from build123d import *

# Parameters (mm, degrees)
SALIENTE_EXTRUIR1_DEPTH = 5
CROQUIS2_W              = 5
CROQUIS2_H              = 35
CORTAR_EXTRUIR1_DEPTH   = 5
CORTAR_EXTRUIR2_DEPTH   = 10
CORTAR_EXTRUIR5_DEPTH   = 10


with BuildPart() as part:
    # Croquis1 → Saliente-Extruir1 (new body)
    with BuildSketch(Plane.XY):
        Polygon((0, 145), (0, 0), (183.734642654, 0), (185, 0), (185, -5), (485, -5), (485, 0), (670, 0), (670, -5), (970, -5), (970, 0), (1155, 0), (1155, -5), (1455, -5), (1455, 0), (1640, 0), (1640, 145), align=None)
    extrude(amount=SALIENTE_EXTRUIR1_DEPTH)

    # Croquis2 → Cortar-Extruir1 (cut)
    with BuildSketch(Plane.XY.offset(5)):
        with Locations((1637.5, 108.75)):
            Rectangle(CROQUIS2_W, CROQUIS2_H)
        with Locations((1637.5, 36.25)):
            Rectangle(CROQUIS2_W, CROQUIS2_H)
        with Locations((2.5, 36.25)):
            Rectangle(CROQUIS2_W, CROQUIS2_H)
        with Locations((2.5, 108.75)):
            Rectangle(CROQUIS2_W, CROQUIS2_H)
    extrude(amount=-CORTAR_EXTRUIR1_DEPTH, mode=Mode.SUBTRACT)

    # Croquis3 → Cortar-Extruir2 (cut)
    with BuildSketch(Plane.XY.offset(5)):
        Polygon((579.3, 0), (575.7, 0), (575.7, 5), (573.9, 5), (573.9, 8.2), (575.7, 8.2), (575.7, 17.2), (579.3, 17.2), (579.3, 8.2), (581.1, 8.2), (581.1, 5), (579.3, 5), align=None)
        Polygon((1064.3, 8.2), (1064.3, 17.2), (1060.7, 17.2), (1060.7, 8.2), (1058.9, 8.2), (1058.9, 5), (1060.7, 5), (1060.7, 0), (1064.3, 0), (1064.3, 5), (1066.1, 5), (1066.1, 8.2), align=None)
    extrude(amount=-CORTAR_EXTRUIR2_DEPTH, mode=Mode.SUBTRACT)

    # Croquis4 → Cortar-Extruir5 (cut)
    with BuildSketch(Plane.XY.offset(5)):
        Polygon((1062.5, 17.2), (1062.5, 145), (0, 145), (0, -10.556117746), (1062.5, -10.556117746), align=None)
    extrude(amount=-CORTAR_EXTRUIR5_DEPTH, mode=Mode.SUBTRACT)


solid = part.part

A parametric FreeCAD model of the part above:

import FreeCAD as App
import Part
import Sketcher
Q = App.Units.Quantity

doc = App.newDocument("Part")
params = doc.addObject("Spreadsheet::Sheet", "Params")
for row, (alias, value) in enumerate([
    ("sketch1_width", "185 mm"),
    ("sketch1_width2", "300 mm"),
    ("sketch1_height", "145 mm"),
    ("sketch1_height2", "5 mm"),
    ("pad1_length", "5 mm"),
    ("sketch2_width", "5 mm"),
    ("sketch2_height", "35 mm"),
    ("pocket1_length", "5 mm"),
    ("sketch3_height", "5 mm"),
    ("sketch3_height2", "9 mm"),
    ("sketch3_width", "3.6 mm"),
    ("sketch3_width2", "1.8 mm"),
    ("sketch3_height3", "3.2 mm"),
    ("pocket2_length", "10 mm"),
    ("sketch4_width", "1062.5 mm"),
    ("pocket3_length", "10 mm"),
], start=1):
    params.set(f"A{row}", alias)
    params.set(f"B{row}", "=" + value)
    params.setAlias(f"B{row}", alias)

body = doc.addObject("PartDesign::Body", "Body")

# Sketch on XY plane
sketch1 = doc.addObject("Sketcher::SketchObject", "Sketch")
body.addObject(sketch1)
sketch1.AttachmentSupport = (doc.XY_Plane, [""])
sketch1.MapMode = "FlatFace"
sketch1.addGeometry([
    Part.LineSegment(App.Vector(0, 145, 0), App.Vector(0, 0, 0)),  # 0
    Part.LineSegment(App.Vector(0, 0, 0), App.Vector(185, 0, 0)),  # 1
    Part.LineSegment(App.Vector(185, 0, 0), App.Vector(185, -5, 0)),  # 2
    Part.LineSegment(App.Vector(185, -5, 0), App.Vector(485, -5, 0)),  # 3
    Part.LineSegment(App.Vector(485, -5, 0), App.Vector(485, 0, 0)),  # 4
    Part.LineSegment(App.Vector(485, 0, 0), App.Vector(670, 0, 0)),  # 5
    Part.LineSegment(App.Vector(670, 0, 0), App.Vector(670, -5, 0)),  # 6
    Part.LineSegment(App.Vector(670, -5, 0), App.Vector(970, -5, 0)),  # 7
    Part.LineSegment(App.Vector(970, -5, 0), App.Vector(970, 0, 0)),  # 8
    Part.LineSegment(App.Vector(970, 0, 0), App.Vector(1155, 0, 0)),  # 9
    Part.LineSegment(App.Vector(1155, 0, 0), App.Vector(1155, -5, 0)),  # 10
    Part.LineSegment(App.Vector(1155, -5, 0), App.Vector(1455, -5, 0)),  # 11
    Part.LineSegment(App.Vector(1455, -5, 0), App.Vector(1455, 0, 0)),  # 12
    Part.LineSegment(App.Vector(1455, 0, 0), App.Vector(1640, 0, 0)),  # 13
    Part.LineSegment(App.Vector(1640, 0, 0), App.Vector(1640, 145, 0)),  # 14
    Part.LineSegment(App.Vector(1640, 145, 0), App.Vector(0, 145, 0)),  # 15
], False)
sketch1.addConstraint([
    Sketcher.Constraint("Coincident", 0, 2, 1, 1),
    Sketcher.Constraint("Coincident", 1, 2, 2, 1),
    Sketcher.Constraint("Coincident", 2, 2, 3, 1),
    Sketcher.Constraint("Coincident", 3, 2, 4, 1),
    Sketcher.Constraint("Coincident", 4, 2, 5, 1),
    Sketcher.Constraint("Coincident", 5, 2, 6, 1),
    Sketcher.Constraint("Coincident", 6, 2, 7, 1),
    Sketcher.Constraint("Coincident", 7, 2, 8, 1),
    Sketcher.Constraint("Coincident", 8, 2, 9, 1),
    Sketcher.Constraint("Coincident", 9, 2, 10, 1),
    Sketcher.Constraint("Coincident", 10, 2, 11, 1),
    Sketcher.Constraint("Coincident", 11, 2, 12, 1),
    Sketcher.Constraint("Coincident", 12, 2, 13, 1),
    Sketcher.Constraint("Coincident", 13, 2, 14, 1),
    Sketcher.Constraint("Coincident", 14, 2, 15, 1),
    Sketcher.Constraint("Coincident", 15, 2, 0, 1),
    Sketcher.Constraint("Vertical", 0),
    Sketcher.Constraint("Horizontal", 1),
    Sketcher.Constraint("Vertical", 2),
    Sketcher.Constraint("Horizontal", 3),
    Sketcher.Constraint("Vertical", 4),
    Sketcher.Constraint("Horizontal", 5),
    Sketcher.Constraint("Vertical", 6),
    Sketcher.Constraint("Horizontal", 7),
    Sketcher.Constraint("Vertical", 8),
    Sketcher.Constraint("Horizontal", 9),
    Sketcher.Constraint("Vertical", 10),
    Sketcher.Constraint("Horizontal", 11),
    Sketcher.Constraint("Vertical", 12),
    Sketcher.Constraint("Horizontal", 13),
    Sketcher.Constraint("Vertical", 14),
    Sketcher.Constraint("Horizontal", 15),
    Sketcher.Constraint("Coincident", 0, 2, -1, 1),
    Sketcher.Constraint("PointOnObject", 4, 2, -1),
    Sketcher.Constraint("PointOnObject", 8, 2, -1),
    Sketcher.Constraint("PointOnObject", 12, 2, -1),
    Sketcher.Constraint("Horizontal", 3, 2, 6, 2),
    Sketcher.Constraint("Horizontal", 7, 2, 10, 2),
    Sketcher.Constraint("Equal", 1, 5),
    Sketcher.Constraint("Equal", 3, 7),
    Sketcher.Constraint("Equal", 5, 9),
    Sketcher.Constraint("Equal", 7, 11),
    Sketcher.Constraint("Equal", 9, 13),
    Sketcher.Constraint("DistanceX", 1, 1, 1, 2, Q("185 mm")),
    Sketcher.Constraint("DistanceX", 3, 1, 3, 2, Q("300 mm")),
    Sketcher.Constraint("DistanceY", 0, 2, 0, 1, Q("145 mm")),
    Sketcher.Constraint("DistanceY", 2, 2, 2, 1, Q("5 mm")),
])
sketch1.setExpression("Constraints[43]", "Params.sketch1_width")
sketch1.setExpression("Constraints[44]", "Params.sketch1_width2")
sketch1.setExpression("Constraints[45]", "Params.sketch1_height")
sketch1.setExpression("Constraints[46]", "Params.sketch1_height2")
pad1 = doc.addObject("PartDesign::Pad", "Pad")
body.addObject(pad1)
pad1.Profile = sketch1
pad1.setExpression("Length", "Params.pad1_length")

# Sketch on XY plane
sketch2 = doc.addObject("Sketcher::SketchObject", "Sketch001")
body.addObject(sketch2)
sketch2.AttachmentSupport = (doc.XY_Plane, [""])
sketch2.MapMode = "FlatFace"
sketch2.AttachmentOffset = App.Placement(App.Vector(0, 0, 5), App.Rotation())
sketch2.addGeometry([
    Part.LineSegment(App.Vector(1635, 126, 0), App.Vector(1635, 91, 0)),  # 0
    Part.LineSegment(App.Vector(1635, 91, 0), App.Vector(1640, 91, 0)),  # 1
    Part.LineSegment(App.Vector(1640, 91, 0), App.Vector(1640, 126, 0)),  # 2
    Part.LineSegment(App.Vector(1640, 126, 0), App.Vector(1635, 126, 0)),  # 3
    Part.LineSegment(App.Vector(1635, 54, 0), App.Vector(1635, 19, 0)),  # 4
    Part.LineSegment(App.Vector(1635, 19, 0), App.Vector(1640, 19, 0)),  # 5
    Part.LineSegment(App.Vector(1640, 19, 0), App.Vector(1640, 54, 0)),  # 6
    Part.LineSegment(App.Vector(1640, 54, 0), App.Vector(1635, 54, 0)),  # 7
    Part.LineSegment(App.Vector(0, 54, 0), App.Vector(0, 19, 0)),  # 8
    Part.LineSegment(App.Vector(0, 19, 0), App.Vector(5, 19, 0)),  # 9
    Part.LineSegment(App.Vector(5, 19, 0), App.Vector(5, 54, 0)),  # 10
    Part.LineSegment(App.Vector(5, 54, 0), App.Vector(0, 54, 0)),  # 11
    Part.LineSegment(App.Vector(0, 126, 0), App.Vector(0, 91, 0)),  # 12
    Part.LineSegment(App.Vector(0, 91, 0), App.Vector(5, 91, 0)),  # 13
    Part.LineSegment(App.Vector(5, 91, 0), App.Vector(5, 126, 0)),  # 14
    Part.LineSegment(App.Vector(5, 126, 0), App.Vector(0, 126, 0)),  # 15
], False)
sketch2.addConstraint([
    Sketcher.Constraint("Coincident", 0, 2, 1, 1),
    Sketcher.Constraint("Coincident", 1, 2, 2, 1),
    Sketcher.Constraint("Coincident", 2, 2, 3, 1),
    Sketcher.Constraint("Coincident", 3, 2, 0, 1),
    Sketcher.Constraint("Coincident", 4, 2, 5, 1),
    Sketcher.Constraint("Coincident", 5, 2, 6, 1),
    Sketcher.Constraint("Coincident", 6, 2, 7, 1),
    Sketcher.Constraint("Coincident", 7, 2, 4, 1),
    Sketcher.Constraint("Coincident", 8, 2, 9, 1),
    Sketcher.Constraint("Coincident", 9, 2, 10, 1),
    Sketcher.Constraint("Coincident", 10, 2, 11, 1),
    Sketcher.Constraint("Coincident", 11, 2, 8, 1),
    Sketcher.Constraint("Coincident", 12, 2, 13, 1),
    Sketcher.Constraint("Coincident", 13, 2, 14, 1),
    Sketcher.Constraint("Coincident", 14, 2, 15, 1),
    Sketcher.Constraint("Coincident", 15, 2, 12, 1),
    Sketcher.Constraint("Vertical", 0),
    Sketcher.Constraint("Horizontal", 1),
    Sketcher.Constraint("Vertical", 2),
    Sketcher.Constraint("Horizontal", 3),
    Sketcher.Constraint("Vertical", 4),
    Sketcher.Constraint("Horizontal", 5),
    Sketcher.Constraint("Vertical", 6),
    Sketcher.Constraint("Horizontal", 7),
    Sketcher.Constraint("Vertical", 8),
    Sketcher.Constraint("Horizontal", 9),
    Sketcher.Constraint("Vertical", 10),
    Sketcher.Constraint("Horizontal", 11),
    Sketcher.Constraint("Vertical", 12),
    Sketcher.Constraint("Horizontal", 13),
    Sketcher.Constraint("Vertical", 14),
    Sketcher.Constraint("Horizontal", 15),
    Sketcher.Constraint("PointOnObject", 8, 2, -2),
    Sketcher.Constraint("PointOnObject", 12, 2, -2),
    Sketcher.Constraint("Horizontal", 5, 2, 8, 2),
    Sketcher.Constraint("Horizontal", 7, 2, 10, 2),
    Sketcher.Constraint("Horizontal", 1, 2, 12, 2),
    Sketcher.Constraint("Horizontal", 3, 2, 14, 2),
    Sketcher.Constraint("Vertical", 3, 2, 4, 2),
    Sketcher.Constraint("Vertical", 2, 2, 5, 2),
    Sketcher.Constraint("Vertical", 10, 2, 13, 2),
    Sketcher.Constraint("Equal", 7, 9),
    Sketcher.Constraint("Equal", 2, 4),
    Sketcher.Constraint("DistanceX", 1, 1, 1, 2, Q("5 mm")),
    Sketcher.Constraint("DistanceY", 0, 2, 0, 1, Q("35 mm")),
    Sketcher.Constraint("DistanceX", -1, 1, 0, 2, Q("1635 mm")),
    Sketcher.Constraint("DistanceY", 4, 2, 0, 2, Q("72.5 mm")),
    Sketcher.Constraint("DistanceY", -1, 1, 0, 2, Q("91.25 mm")),
])
sketch2.setExpression("Constraints[43]", "Params.sketch2_width")
sketch2.setExpression("Constraints[44]", "Params.sketch2_height")
pocket1 = doc.addObject("PartDesign::Pocket", "Pocket")
body.addObject(pocket1)
pocket1.Profile = sketch2
pocket1.setExpression("Length", "Params.pocket1_length")

# Sketch on XY plane
sketch3 = doc.addObject("Sketcher::SketchObject", "Sketch002")
body.addObject(sketch3)
sketch3.AttachmentSupport = (doc.XY_Plane, [""])
sketch3.MapMode = "FlatFace"
sketch3.AttachmentOffset = App.Placement(App.Vector(0, 0, 5), App.Rotation())
sketch3.addGeometry([
    Part.LineSegment(App.Vector(575.7, 0, 0), App.Vector(579.3, 0, 0)),  # 0
    Part.LineSegment(App.Vector(579.3, 0, 0), App.Vector(579.3, 5, 0)),  # 1
    Part.LineSegment(App.Vector(579.3, 5, 0), App.Vector(581.1, 5, 0)),  # 2
    Part.LineSegment(App.Vector(581.1, 5, 0), App.Vector(581.1, 8.2, 0)),  # 3
    Part.LineSegment(App.Vector(581.1, 8.2, 0), App.Vector(579.3, 8.2, 0)),  # 4
    Part.LineSegment(App.Vector(579.3, 8.2, 0), App.Vector(579.3, 17.2, 0)),  # 5
    Part.LineSegment(App.Vector(579.3, 17.2, 0), App.Vector(575.7, 17.2, 0)),  # 6
    Part.LineSegment(App.Vector(575.7, 17.2, 0), App.Vector(575.7, 8.2, 0)),  # 7
    Part.LineSegment(App.Vector(575.7, 8.2, 0), App.Vector(573.9, 8.2, 0)),  # 8
    Part.LineSegment(App.Vector(573.9, 8.2, 0), App.Vector(573.9, 5, 0)),  # 9
    Part.LineSegment(App.Vector(573.9, 5, 0), App.Vector(575.7, 5, 0)),  # 10
    Part.LineSegment(App.Vector(575.7, 5, 0), App.Vector(575.7, 0, 0)),  # 11
    Part.LineSegment(App.Vector(1064.3, 8.2, 0), App.Vector(1064.3, 17.2, 0)),  # 12
    Part.LineSegment(App.Vector(1064.3, 17.2, 0), App.Vector(1060.7, 17.2, 0)),  # 13
    Part.LineSegment(App.Vector(1060.7, 17.2, 0), App.Vector(1060.7, 8.2, 0)),  # 14
    Part.LineSegment(App.Vector(1060.7, 8.2, 0), App.Vector(1058.9, 8.2, 0)),  # 15
    Part.LineSegment(App.Vector(1058.9, 8.2, 0), App.Vector(1058.9, 5, 0)),  # 16
    Part.LineSegment(App.Vector(1058.9, 5, 0), App.Vector(1060.7, 5, 0)),  # 17
    Part.LineSegment(App.Vector(1060.7, 5, 0), App.Vector(1060.7, 0, 0)),  # 18
    Part.LineSegment(App.Vector(1060.7, 0, 0), App.Vector(1064.3, 0, 0)),  # 19
    Part.LineSegment(App.Vector(1064.3, 0, 0), App.Vector(1064.3, 5, 0)),  # 20
    Part.LineSegment(App.Vector(1064.3, 5, 0), App.Vector(1066.1, 5, 0)),  # 21
    Part.LineSegment(App.Vector(1066.1, 5, 0), App.Vector(1066.1, 8.2, 0)),  # 22
    Part.LineSegment(App.Vector(1066.1, 8.2, 0), App.Vector(1064.3, 8.2, 0)),  # 23
], False)
sketch3.addConstraint([
    Sketcher.Constraint("Coincident", 0, 2, 1, 1),
    Sketcher.Constraint("Coincident", 1, 2, 2, 1),
    Sketcher.Constraint("Coincident", 2, 2, 3, 1),
    Sketcher.Constraint("Coincident", 3, 2, 4, 1),
    Sketcher.Constraint("Coincident", 4, 2, 5, 1),
    Sketcher.Constraint("Coincident", 5, 2, 6, 1),
    Sketcher.Constraint("Coincident", 6, 2, 7, 1),
    Sketcher.Constraint("Coincident", 7, 2, 8, 1),
    Sketcher.Constraint("Coincident", 8, 2, 9, 1),
    Sketcher.Constraint("Coincident", 9, 2, 10, 1),
    Sketcher.Constraint("Coincident", 10, 2, 11, 1),
    Sketcher.Constraint("Coincident", 11, 2, 0, 1),
    Sketcher.Constraint("Coincident", 12, 2, 13, 1),
    Sketcher.Constraint("Coincident", 13, 2, 14, 1),
    Sketcher.Constraint("Coincident", 14, 2, 15, 1),
    Sketcher.Constraint("Coincident", 15, 2, 16, 1),
    Sketcher.Constraint("Coincident", 16, 2, 17, 1),
    Sketcher.Constraint("Coincident", 17, 2, 18, 1),
    Sketcher.Constraint("Coincident", 18, 2, 19, 1),
    Sketcher.Constraint("Coincident", 19, 2, 20, 1),
    Sketcher.Constraint("Coincident", 20, 2, 21, 1),
    Sketcher.Constraint("Coincident", 21, 2, 22, 1),
    Sketcher.Constraint("Coincident", 22, 2, 23, 1),
    Sketcher.Constraint("Coincident", 23, 2, 12, 1),
    Sketcher.Constraint("Horizontal", 0),
    Sketcher.Constraint("Vertical", 1),
    Sketcher.Constraint("Horizontal", 2),
    Sketcher.Constraint("Vertical", 3),
    Sketcher.Constraint("Horizontal", 4),
    Sketcher.Constraint("Vertical", 5),
    Sketcher.Constraint("Horizontal", 6),
    Sketcher.Constraint("Vertical", 7),
    Sketcher.Constraint("Horizontal", 8),
    Sketcher.Constraint("Vertical", 9),
    Sketcher.Constraint("Horizontal", 10),
    Sketcher.Constraint("Vertical", 11),
    Sketcher.Constraint("Vertical", 12),
    Sketcher.Constraint("Horizontal", 13),
    Sketcher.Constraint("Vertical", 14),
    Sketcher.Constraint("Horizontal", 15),
    Sketcher.Constraint("Vertical", 16),
    Sketcher.Constraint("Horizontal", 17),
    Sketcher.Constraint("Vertical", 18),
    Sketcher.Constraint("Horizontal", 19),
    Sketcher.Constraint("Vertical", 20),
    Sketcher.Constraint("Horizontal", 21),
    Sketcher.Constraint("Vertical", 22),
    Sketcher.Constraint("Horizontal", 23),
    Sketcher.Constraint("PointOnObject", 0, 2, -1),
    Sketcher.Constraint("PointOnObject", 18, 2, -1),
    Sketcher.Constraint("Horizontal", 4, 2, 7, 2),
    Sketcher.Constraint("Horizontal", 2, 2, 9, 2),
    Sketcher.Constraint("Horizontal", 6, 2, 12, 2),
    Sketcher.Constraint("Horizontal", 8, 2, 14, 2),
    Sketcher.Constraint("Horizontal", 10, 2, 16, 2),
    Sketcher.Constraint("Horizontal", 17, 2, 20, 2),
    Sketcher.Constraint("Horizontal", 15, 2, 22, 2),
    Sketcher.Constraint("Vertical", 1, 2, 4, 2),
    Sketcher.Constraint("Vertical", 7, 2, 10, 2),
    Sketcher.Constraint("Vertical", 14, 2, 17, 2),
    Sketcher.Constraint("Vertical", 12, 2, 19, 2),
    Sketcher.Constraint("Equal", 4, 8),
    Sketcher.Constraint("Equal", 6, 13),
    Sketcher.Constraint("Equal", 10, 15),
    Sketcher.Constraint("Equal", 17, 21),
    Sketcher.Constraint("DistanceY", 1, 1, 1, 2, Q("5 mm")),
    Sketcher.Constraint("DistanceY", 5, 1, 5, 2, Q("9 mm")),
    Sketcher.Constraint("DistanceX", 0, 1, 0, 2, Q("3.6 mm")),
    Sketcher.Constraint("DistanceX", 2, 1, 2, 2, Q("1.8 mm")),
    Sketcher.Constraint("DistanceY", 3, 1, 3, 2, Q("3.2 mm")),
    Sketcher.Constraint("DistanceX", 5, 2, 12, 2, Q("485 mm")),
    Sketcher.Constraint("DistanceX", -1, 1, 0, 2, Q("579.3 mm")),
])
sketch3.setExpression("Constraints[65]", "Params.sketch3_height")
sketch3.setExpression("Constraints[66]", "Params.sketch3_height2")
sketch3.setExpression("Constraints[67]", "Params.sketch3_width")
sketch3.setExpression("Constraints[68]", "Params.sketch3_width2")
sketch3.setExpression("Constraints[69]", "Params.sketch3_height3")
pocket2 = doc.addObject("PartDesign::Pocket", "Pocket001")
body.addObject(pocket2)
pocket2.Profile = sketch3
pocket2.setExpression("Length", "Params.pocket2_length")

# Sketch on XY plane
sketch4 = doc.addObject("Sketcher::SketchObject", "Sketch003")
body.addObject(sketch4)
sketch4.AttachmentSupport = (doc.XY_Plane, [""])
sketch4.MapMode = "FlatFace"
sketch4.AttachmentOffset = App.Placement(App.Vector(0, 0, 5), App.Rotation())
sketch4.addGeometry([
    Part.LineSegment(App.Vector(1062, 145, 0), App.Vector(0, 145, 0)),
    Part.LineSegment(App.Vector(0, 145, 0), App.Vector(0, -11, 0)),
    Part.LineSegment(App.Vector(0, -11, 0), App.Vector(1062, -11, 0)),
    Part.LineSegment(App.Vector(1062, -11, 0), App.Vector(1062, 145, 0)),
], False)
sketch4.addConstraint([
    Sketcher.Constraint("Coincident", 0, 2, 1, 1),
    Sketcher.Constraint("Coincident", 1, 2, 2, 1),
    Sketcher.Constraint("Coincident", 2, 2, 3, 1),
    Sketcher.Constraint("Coincident", 3, 2, 0, 1),
    Sketcher.Constraint("Horizontal", 0),
    Sketcher.Constraint("Vertical", 1),
    Sketcher.Constraint("Horizontal", 2),
    Sketcher.Constraint("Vertical", 3),
    Sketcher.Constraint("PointOnObject", 0, 2, -2),
    Sketcher.Constraint("DistanceX", 0, 2, 0, 1, Q("1062.5 mm")),
    Sketcher.Constraint("DistanceY", -1, 1, 0, 2, Q("145 mm")),
    Sketcher.Constraint("DistanceY", 1, 2, 1, 1, Q("155.556118 mm")),
])
sketch4.setExpression("Constraints[9]", "Params.sketch4_width")
pocket3 = doc.addObject("PartDesign::Pocket", "Pocket002")
body.addObject(pocket3)
pocket3.Profile = sketch4
pocket3.setExpression("Length", "Params.pocket3_length")

doc.recompute()
